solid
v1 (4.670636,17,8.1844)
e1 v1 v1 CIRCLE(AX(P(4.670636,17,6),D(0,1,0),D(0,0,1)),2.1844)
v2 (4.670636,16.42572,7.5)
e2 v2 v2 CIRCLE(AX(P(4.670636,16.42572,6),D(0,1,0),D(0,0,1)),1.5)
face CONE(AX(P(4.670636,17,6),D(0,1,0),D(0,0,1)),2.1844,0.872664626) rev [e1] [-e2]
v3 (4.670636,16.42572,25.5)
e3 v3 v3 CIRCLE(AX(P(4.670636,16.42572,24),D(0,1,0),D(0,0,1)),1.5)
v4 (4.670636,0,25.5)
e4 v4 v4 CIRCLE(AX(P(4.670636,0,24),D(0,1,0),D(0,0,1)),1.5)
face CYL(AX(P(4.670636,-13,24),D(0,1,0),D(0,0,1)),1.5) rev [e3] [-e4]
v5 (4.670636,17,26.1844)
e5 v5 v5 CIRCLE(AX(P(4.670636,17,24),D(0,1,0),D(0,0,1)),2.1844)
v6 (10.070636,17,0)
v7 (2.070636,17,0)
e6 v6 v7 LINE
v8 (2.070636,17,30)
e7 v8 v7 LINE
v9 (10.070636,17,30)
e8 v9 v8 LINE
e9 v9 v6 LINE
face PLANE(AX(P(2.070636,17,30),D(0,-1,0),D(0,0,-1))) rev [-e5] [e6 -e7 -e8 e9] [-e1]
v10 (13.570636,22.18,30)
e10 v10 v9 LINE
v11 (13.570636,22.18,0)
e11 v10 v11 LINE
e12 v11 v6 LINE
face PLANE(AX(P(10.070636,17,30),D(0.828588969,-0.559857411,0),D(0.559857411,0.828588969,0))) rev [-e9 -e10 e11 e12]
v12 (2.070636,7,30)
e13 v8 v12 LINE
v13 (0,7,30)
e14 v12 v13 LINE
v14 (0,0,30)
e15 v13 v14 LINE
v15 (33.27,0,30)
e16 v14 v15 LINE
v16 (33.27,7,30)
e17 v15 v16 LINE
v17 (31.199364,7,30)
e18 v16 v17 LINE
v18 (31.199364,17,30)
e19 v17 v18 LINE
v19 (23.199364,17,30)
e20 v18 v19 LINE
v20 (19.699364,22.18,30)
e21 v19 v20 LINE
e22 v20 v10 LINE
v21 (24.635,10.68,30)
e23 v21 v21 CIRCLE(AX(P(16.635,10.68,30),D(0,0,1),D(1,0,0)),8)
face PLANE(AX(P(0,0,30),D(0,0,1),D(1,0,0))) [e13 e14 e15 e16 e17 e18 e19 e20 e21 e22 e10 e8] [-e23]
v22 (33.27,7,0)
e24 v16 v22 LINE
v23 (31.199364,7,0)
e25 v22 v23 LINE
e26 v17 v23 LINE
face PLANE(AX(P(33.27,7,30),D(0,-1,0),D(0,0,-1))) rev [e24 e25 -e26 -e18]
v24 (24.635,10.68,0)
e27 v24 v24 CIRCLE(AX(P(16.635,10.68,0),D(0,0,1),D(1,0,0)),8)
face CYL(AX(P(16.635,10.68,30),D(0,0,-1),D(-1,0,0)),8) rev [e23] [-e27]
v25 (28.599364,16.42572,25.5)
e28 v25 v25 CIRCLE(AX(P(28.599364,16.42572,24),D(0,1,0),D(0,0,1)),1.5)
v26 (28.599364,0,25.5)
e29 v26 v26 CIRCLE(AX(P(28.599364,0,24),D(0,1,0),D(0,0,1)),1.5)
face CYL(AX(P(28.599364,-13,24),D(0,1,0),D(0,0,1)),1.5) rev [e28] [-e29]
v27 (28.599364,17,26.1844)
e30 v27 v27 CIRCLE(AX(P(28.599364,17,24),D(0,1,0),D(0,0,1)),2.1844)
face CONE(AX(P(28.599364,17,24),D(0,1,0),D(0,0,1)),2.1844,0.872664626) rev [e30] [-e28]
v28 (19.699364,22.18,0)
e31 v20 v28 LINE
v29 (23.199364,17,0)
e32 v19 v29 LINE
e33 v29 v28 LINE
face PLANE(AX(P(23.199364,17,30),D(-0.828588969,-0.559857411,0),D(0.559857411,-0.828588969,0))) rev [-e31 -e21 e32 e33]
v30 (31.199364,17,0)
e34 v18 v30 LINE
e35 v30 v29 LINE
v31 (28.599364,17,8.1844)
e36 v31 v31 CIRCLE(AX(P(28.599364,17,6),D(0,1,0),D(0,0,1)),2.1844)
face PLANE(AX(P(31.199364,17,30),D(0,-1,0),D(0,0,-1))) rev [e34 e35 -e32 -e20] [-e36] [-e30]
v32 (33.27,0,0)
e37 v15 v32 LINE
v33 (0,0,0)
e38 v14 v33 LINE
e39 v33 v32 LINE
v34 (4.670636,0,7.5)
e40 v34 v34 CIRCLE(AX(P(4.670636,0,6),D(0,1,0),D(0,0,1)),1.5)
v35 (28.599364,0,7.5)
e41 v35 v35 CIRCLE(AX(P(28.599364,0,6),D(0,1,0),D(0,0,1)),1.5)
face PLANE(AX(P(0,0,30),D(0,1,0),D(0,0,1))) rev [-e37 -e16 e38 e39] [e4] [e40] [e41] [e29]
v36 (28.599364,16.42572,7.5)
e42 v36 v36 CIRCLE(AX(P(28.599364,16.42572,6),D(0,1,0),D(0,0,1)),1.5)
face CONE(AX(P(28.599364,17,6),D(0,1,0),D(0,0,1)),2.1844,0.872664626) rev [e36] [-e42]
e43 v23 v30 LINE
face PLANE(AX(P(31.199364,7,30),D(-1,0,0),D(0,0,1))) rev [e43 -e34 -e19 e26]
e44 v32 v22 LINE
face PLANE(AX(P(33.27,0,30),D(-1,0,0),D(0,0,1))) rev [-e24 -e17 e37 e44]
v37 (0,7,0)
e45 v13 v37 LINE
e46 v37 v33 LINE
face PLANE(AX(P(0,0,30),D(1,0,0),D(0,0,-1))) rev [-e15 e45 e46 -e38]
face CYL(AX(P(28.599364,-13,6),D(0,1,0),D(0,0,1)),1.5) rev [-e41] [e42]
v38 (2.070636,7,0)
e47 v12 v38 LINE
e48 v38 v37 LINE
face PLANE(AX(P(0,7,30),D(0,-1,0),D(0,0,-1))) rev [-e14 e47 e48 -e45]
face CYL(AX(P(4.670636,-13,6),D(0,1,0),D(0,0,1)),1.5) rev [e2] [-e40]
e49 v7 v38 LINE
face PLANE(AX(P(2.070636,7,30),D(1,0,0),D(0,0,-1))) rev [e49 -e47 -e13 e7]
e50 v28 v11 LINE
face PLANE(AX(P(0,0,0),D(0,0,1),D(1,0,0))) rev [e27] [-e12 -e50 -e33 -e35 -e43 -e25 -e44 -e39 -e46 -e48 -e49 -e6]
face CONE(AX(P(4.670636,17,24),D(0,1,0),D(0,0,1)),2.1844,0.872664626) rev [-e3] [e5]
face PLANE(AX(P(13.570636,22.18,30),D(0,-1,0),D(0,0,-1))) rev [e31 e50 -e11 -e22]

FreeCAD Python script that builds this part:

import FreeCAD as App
import Part
import Sketcher

V = App.Vector
Q = App.Units.Quantity


def add_polygon(sketch, points):
    """Adds a closed chain of lines whose ends are joined by coincident constraints."""
    first, n = sketch.GeometryCount, len(points)
    for a, b in zip(points, points[1:] + points[:1]):
        sketch.addGeometry(Part.LineSegment(App.Vector(*a, 0), App.Vector(*b, 0)), False)
    for i in range(n):
        sketch.addConstraint(Sketcher.Constraint("Coincident", first + i, 2, first + (i + 1) % n, 1))

doc = App.newDocument("Part")
params = doc.addObject("Spreadsheet::Sheet", "Params")
for row, (alias, value) in enumerate([
    ("sketch1_diameter", "16 mm"),
    ("sketch1_width", "8 mm"),
    ("sketch1_height", "10 mm"),
    ("sketch1_height2", "7 mm"),
    ("sketch1_width2", "33.27 mm"),
    ("pad1_length", "30 mm"),
    ("sketch2_diameter", "3 mm"),
    ("pocket1_length", "30 mm"),
    ("hole_diameter", "2.7051 mm"),
    ("hole_csink_diameter", "4.3688 mm"),
    ("hole2_diameter", "2.7051 mm"),
    ("hole2_csink_diameter", "4.3688 mm"),
    ("hole3_diameter", "2.7051 mm"),
    ("hole3_csink_diameter", "4.3688 mm"),
    ("hole4_diameter", "2.7051 mm"),
    ("hole4_csink_diameter", "4.3688 mm"),
], start=1):
    params.set(f"A{row}", alias)
    params.set(f"B{row}", "=" + value)
    params.setAlias(f"B{row}", alias)

body = doc.addObject("PartDesign::Body", "Body")

sketch1 = doc.addObject("Sketcher::SketchObject", "Sketch")
body.addObject(sketch1)
sketch1.AttachmentSupport = (doc.XY_Plane, [""])
sketch1.MapMode = "FlatFace"
add_polygon(sketch1, [(33.3, 7), (31.2, 7), (31.2, 17), (23.2, 17), (19.7, 22.2), (13.6, 22.2), (10.1, 17), (2.1, 17), (2.1, 7), (0, 7), (0, 0), (33.3, 0)])
sketch1.addGeometry(Part.Circle(V(16.6, 10.7, 0), V(0, 0, 1), 8), False)
sketch1.addConstraint([
    Sketcher.Constraint("Horizontal", 0),
    Sketcher.Constraint("Vertical", 1),
    Sketcher.Constraint("Horizontal", 2),
    Sketcher.Constraint("Horizontal", 4),
    Sketcher.Constraint("Horizontal", 6),
    Sketcher.Constraint("Vertical", 7),
    Sketcher.Constraint("Horizontal", 8),
    Sketcher.Constraint("Vertical", 9),
    Sketcher.Constraint("Horizontal", 10),
    Sketcher.Constraint("Vertical", 11),
    Sketcher.Constraint("Coincident", 9, 2, -1, 1),
    Sketcher.Constraint("Horizontal", 2, 2, 5, 2),
    Sketcher.Constraint("Horizontal", 0, 2, 7, 2),
    Sketcher.Constraint("Equal", 2, 6),
    Sketcher.Constraint("Equal", 0, 8),
    Sketcher.Constraint("Equal", 3, 5),
    Sketcher.Constraint("Diameter", 12, Q("16 mm")),
    Sketcher.Constraint("DistanceX", 2, 2, 2, 1, Q("8 mm")),
    Sketcher.Constraint("DistanceY", 1, 1, 1, 2, Q("10 mm")),
    Sketcher.Constraint("DistanceY", 9, 2, 9, 1, Q("7 mm")),
    Sketcher.Constraint("DistanceX", 10, 1, 10, 2, Q("33.27 mm")),
    Sketcher.Constraint("DistanceX", 3, 2, 2, 2, Q("3.5 mm")),
    Sketcher.Constraint("DistanceY", 12, 3, 3, 2, Q("11.5 mm")),
    Sketcher.Constraint("DistanceY", -1, 1, 12, 3, Q("10.68 mm")),
    Sketcher.Constraint("DistanceX", -1, 1, 12, 3, Q("16.635 mm")),
    Sketcher.Constraint("DistanceX", 4, 2, 4, 1, Q("6.128728 mm")),
])
sketch1.setExpression("Constraints[28]", "Params.sketch1_diameter")
sketch1.setExpression("Constraints[29]", "Params.sketch1_width")
sketch1.setExpression("Constraints[30]", "Params.sketch1_height")
sketch1.setExpression("Constraints[31]", "Params.sketch1_height2")
sketch1.setExpression("Constraints[32]", "Params.sketch1_width2")
pad1 = doc.addObject("PartDesign::Pad", "Pad")
body.addObject(pad1)
pad1.Profile = sketch1
pad1.setExpression("Length", "Params.pad1_length")

sketch2 = doc.addObject("Sketcher::SketchObject", "Sketch001")
body.addObject(sketch2)
sketch2.AttachmentSupport = (doc.XZ_Plane, [""])
sketch2.MapMode = "FlatFace"
sketch2.AttachmentOffset = App.Placement(V(0, 0, -17), App.Rotation())
sketch2.addGeometry([
    Part.Circle(V(28.6, 6, 0), V(0, 0, 1), 1.5),
    Part.Circle(V(28.6, 24, 0), V(0, 0, 1), 1.5),
    Part.Circle(V(4.7, 24, 0), V(0, 0, 1), 1.5),
    Part.Circle(V(4.7, 6, 0), V(0, 0, 1), 1.5),
], False)
sketch2.addConstraint([
    Sketcher.Constraint("Equal", 0, 1),
    Sketcher.Constraint("Equal", 1, 2),
    Sketcher.Constraint("Equal", 2, 3),
    Sketcher.Constraint("Horizontal", 1, 3, 2, 3),
    Sketcher.Constraint("Horizontal", 0, 3, 3, 3),
    Sketcher.Constraint("Vertical", 0, 3, 1, 3),
    Sketcher.Constraint("Vertical", 2, 3, 3, 3),
    Sketcher.Constraint("Diameter", 0, Q("3 mm")),
    Sketcher.Constraint("DistanceY", -1, 1, 0, 3, Q("6 mm")),
    Sketcher.Constraint("DistanceY", -1, 1, 1, 3, Q("24 mm")),
    Sketcher.Constraint("DistanceX", 2, 3, 1, 3, Q("23.928728 mm")),
    Sketcher.Constraint("DistanceX", -1, 1, 0, 3, Q("28.599364 mm")),
])
sketch2.setExpression("Constraints[7]", "Params.sketch2_diameter")
pocket1 = doc.addObject("PartDesign::Pocket", "Pocket")
body.addObject(pocket1)
pocket1.Profile = sketch2
pocket1.setExpression("Length", "Params.pocket1_length")
pocket1.Reversed = True

sketch3 = doc.addObject("Sketcher::SketchObject", "Sketch002")
body.addObject(sketch3)
sketch3.AttachmentSupport = (doc.XZ_Plane, [""])
sketch3.MapMode = "FlatFace"
sketch3.AttachmentOffset = App.Placement(V(0, 0, -17), App.Rotation())
sketch3.addGeometry(Part.Circle(V(4.7, 6, 0), V(0, 0, 1), 1.4), False)
sketch3.addConstraint([
    Sketcher.Constraint("DistanceY", -1, 1, 0, 3, Q("6 mm")),
    Sketcher.Constraint("Diameter", 0, Q("2.7051 mm")),
    Sketcher.Constraint("DistanceX", -1, 1, 0, 3, Q("4.670636 mm")),
])
doc.recompute()
hole = doc.addObject("PartDesign::Hole", "Hole")
body.addObject(hole)
hole.Profile = sketch3
hole.ThreadType = "None"
hole.setExpression("Diameter", "Params.hole_diameter")
hole.DepthType = "ThroughAll"
hole.HoleCutType = "Countersink"
hole.setExpression("HoleCutDiameter", "Params.hole_csink_diameter")
hole.HoleCutCountersinkAngle = 100
hole.Reversed = True

sketch4 = doc.addObject("Sketcher::SketchObject", "Sketch003")
body.addObject(sketch4)
sketch4.AttachmentSupport = (doc.XZ_Plane, [""])
sketch4.MapMode = "FlatFace"
sketch4.AttachmentOffset = App.Placement(V(0, 0, -17), App.Rotation())
sketch4.addGeometry(Part.Circle(V(4.7, 24, 0), V(0, 0, 1), 1.4), False)
sketch4.addConstraint([
    Sketcher.Constraint("DistanceY", -1, 1, 0, 3, Q("24 mm")),
    Sketcher.Constraint("Diameter", 0, Q("2.7051 mm")),
    Sketcher.Constraint("DistanceX", -1, 1, 0, 3, Q("4.670636 mm")),
])
doc.recompute()
hole2 = doc.addObject("PartDesign::Hole", "Hole001")
body.addObject(hole2)
hole2.Profile = sketch4
hole2.ThreadType = "None"
hole2.setExpression("Diameter", "Params.hole2_diameter")
hole2.DepthType = "ThroughAll"
hole2.HoleCutType = "Countersink"
hole2.setExpression("HoleCutDiameter", "Params.hole2_csink_diameter")
hole2.HoleCutCountersinkAngle = 100
hole2.Reversed = True

sketch5 = doc.addObject("Sketcher::SketchObject", "Sketch004")
body.addObject(sketch5)
sketch5.AttachmentSupport = (doc.XZ_Plane, [""])
sketch5.MapMode = "FlatFace"
sketch5.AttachmentOffset = App.Placement(V(0, 0, -17), App.Rotation())
sketch5.addGeometry(Part.Circle(V(28.6, 6, 0), V(0, 0, 1), 1.4), False)
sketch5.addConstraint([
    Sketcher.Constraint("DistanceY", -1, 1, 0, 3, Q("6 mm")),
    Sketcher.Constraint("Diameter", 0, Q("2.7051 mm")),
    Sketcher.Constraint("DistanceX", -1, 1, 0, 3, Q("28.599364 mm")),
])
doc.recompute()
hole3 = doc.addObject("PartDesign::Hole", "Hole002")
body.addObject(hole3)
hole3.Profile = sketch5
hole3.ThreadType = "None"
hole3.setExpression("Diameter", "Params.hole3_diameter")
hole3.DepthType = "ThroughAll"
hole3.HoleCutType = "Countersink"
hole3.setExpression("HoleCutDiameter", "Params.hole3_csink_diameter")
hole3.HoleCutCountersinkAngle = 100
hole3.Reversed = True

sketch6 = doc.addObject("Sketcher::SketchObject", "Sketch005")
body.addObject(sketch6)
sketch6.AttachmentSupport = (doc.XZ_Plane, [""])
sketch6.MapMode = "FlatFace"
sketch6.AttachmentOffset = App.Placement(V(0, 0, -17), App.Rotation())
sketch6.addGeometry(Part.Circle(V(28.6, 24, 0), V(0, 0, 1), 1.4), False)
sketch6.addConstraint([
    Sketcher.Constraint("DistanceY", -1, 1, 0, 3, Q("24 mm")),
    Sketcher.Constraint("Diameter", 0, Q("2.7051 mm")),
    Sketcher.Constraint("DistanceX", -1, 1, 0, 3, Q("28.599364 mm")),
])
doc.recompute()
hole4 = doc.addObject("PartDesign::Hole", "Hole003")
body.addObject(hole4)
hole4.Profile = sketch6
hole4.ThreadType = "None"
hole4.setExpression("Diameter", "Params.hole4_diameter")
hole4.DepthType = "ThroughAll"
hole4.HoleCutType = "Countersink"
hole4.setExpression("HoleCutDiameter", "Params.hole4_csink_diameter")
hole4.HoleCutCountersinkAngle = 100
hole4.Reversed = True

doc.recompute()
